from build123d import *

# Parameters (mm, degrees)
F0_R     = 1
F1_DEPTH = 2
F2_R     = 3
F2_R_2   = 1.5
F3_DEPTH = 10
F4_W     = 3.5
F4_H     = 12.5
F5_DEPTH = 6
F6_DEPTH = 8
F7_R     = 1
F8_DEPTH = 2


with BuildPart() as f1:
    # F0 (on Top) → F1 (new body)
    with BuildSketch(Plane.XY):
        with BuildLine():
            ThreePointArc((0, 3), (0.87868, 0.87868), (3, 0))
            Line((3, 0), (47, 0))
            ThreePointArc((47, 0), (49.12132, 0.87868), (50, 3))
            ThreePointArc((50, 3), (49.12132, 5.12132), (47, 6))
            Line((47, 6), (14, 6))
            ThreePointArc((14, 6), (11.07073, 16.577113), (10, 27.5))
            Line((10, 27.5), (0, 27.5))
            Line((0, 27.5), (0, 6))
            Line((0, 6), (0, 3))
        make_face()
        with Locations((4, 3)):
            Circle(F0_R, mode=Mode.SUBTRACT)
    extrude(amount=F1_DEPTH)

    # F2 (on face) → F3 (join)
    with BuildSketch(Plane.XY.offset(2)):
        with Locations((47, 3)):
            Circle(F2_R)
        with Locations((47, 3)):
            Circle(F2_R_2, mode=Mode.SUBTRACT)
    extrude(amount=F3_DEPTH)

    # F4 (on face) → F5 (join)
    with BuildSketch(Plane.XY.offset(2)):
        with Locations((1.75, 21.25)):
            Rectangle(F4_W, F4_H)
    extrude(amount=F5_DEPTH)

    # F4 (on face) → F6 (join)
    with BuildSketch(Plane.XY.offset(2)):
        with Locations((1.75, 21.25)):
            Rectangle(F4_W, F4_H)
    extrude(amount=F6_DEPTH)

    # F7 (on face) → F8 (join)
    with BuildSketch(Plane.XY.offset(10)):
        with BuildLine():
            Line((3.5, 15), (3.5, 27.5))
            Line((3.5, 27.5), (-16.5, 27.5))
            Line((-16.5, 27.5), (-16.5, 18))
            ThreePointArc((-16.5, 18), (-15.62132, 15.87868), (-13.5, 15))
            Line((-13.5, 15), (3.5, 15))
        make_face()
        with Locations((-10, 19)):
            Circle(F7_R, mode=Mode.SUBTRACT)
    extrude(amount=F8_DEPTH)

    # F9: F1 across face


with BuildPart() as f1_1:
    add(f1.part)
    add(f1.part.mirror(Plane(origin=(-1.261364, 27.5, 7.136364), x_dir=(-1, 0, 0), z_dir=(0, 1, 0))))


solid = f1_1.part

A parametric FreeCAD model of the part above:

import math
import FreeCAD as App
import Part
import Sketcher

V = App.Vector
Q = App.Units.Quantity

doc = App.newDocument("Part")
body = doc.addObject("PartDesign::Body", "Body")

sketch1 = body.newObject("Sketcher::SketchObject", "Sketch")
sketch1.AttachmentSupport = (doc.getObject("XY_Plane"), [""])
sketch1.MapMode = "FlatFace"
sketch1.addGeometry([
    Part.ArcOfCircle(Part.Circle(V(3, 3, 0), V(0, 0, 1), 3), math.radians(-180), math.radians(-90)),
    Part.LineSegment(V(3, 0, 0), V(47, 0, 0)),
    Part.ArcOfCircle(Part.Circle(V(47, 3, 0), V(0, 0, 1), 3), math.radians(-90), math.radians(0)),
    Part.ArcOfCircle(Part.Circle(V(47, 3, 0), V(0, 0, 1), 3), math.radians(0), math.radians(90)),
    Part.LineSegment(V(47, 6, 0), V(14, 6, 0)),
    Part.ArcOfCircle(Part.Circle(V(73.7, 28.2, 0), V(0, 0, 1), 63.7), math.radians(-179.34), math.radians(-159.58)),
    Part.LineSegment(V(10, 27.5, 0), V(0, 27.5, 0)),
    Part.LineSegment(V(0, 27.5, 0), V(0, 3, 0)),
    Part.Circle(V(4, 3, 0), V(0, 0, 1), 1),
], False)
sketch1.addConstraint([
    Sketcher.Constraint("Tangent", 0, 2, 1, 1),
    Sketcher.Constraint("Tangent", 1, 2, 2, 1),
    Sketcher.Constraint("Tangent", 2, 2, 3, 1),
    Sketcher.Constraint("Tangent", 3, 2, 4, 1),
    Sketcher.Constraint("Coincident", 4, 2, 5, 2),
    Sketcher.Constraint("Coincident", 5, 1, 6, 1),
    Sketcher.Constraint("Coincident", 6, 2, 7, 1),
    Sketcher.Constraint("Tangent", 7, 2, 0, 1),
    Sketcher.Constraint("Horizontal", 1),
    Sketcher.Constraint("Horizontal", 4),
    Sketcher.Constraint("Horizontal", 6),
    Sketcher.Constraint("Vertical", 7),
    Sketcher.Constraint("Equal", 0, 2),
    Sketcher.Constraint("Equal", 2, 3),
    Sketcher.Constraint("PointOnObject", 0, 2, -1),
    Sketcher.Constraint("PointOnObject", 6, 2, -2),
    Sketcher.Constraint("Horizontal", 3, 3, 8, 3),
    Sketcher.Constraint("Horizontal", 8, 3, 2, 2),
    Sketcher.Constraint("Diameter", 8, Q("2 mm")),
    Sketcher.Constraint("Radius", 0, Q("3.000001 mm")),
    Sketcher.Constraint("DistanceX", 1, 1, 1, 2, Q("44 mm")),
    Sketcher.Constraint("DistanceX", 4, 2, 4, 1, Q("33 mm")),
    Sketcher.Constraint("DistanceX", 6, 2, 6, 1, Q("10 mm")),
    Sketcher.Constraint("DistanceY", 7, 2, 7, 1, Q("24.5 mm")),
    Sketcher.Constraint("DistanceX", -1, 1, 8, 3, Q("4 mm")),
    Sketcher.Constraint("Radius", 5, Q("63.718756 mm")),
])
pad1 = body.newObject("PartDesign::Pad", "Pad")
pad1.Profile = sketch1
pad1.Length = 2

sketch2 = body.newObject("Sketcher::SketchObject", "Sketch001")
sketch2.AttachmentSupport = (doc.getObject("XY_Plane"), [""])
sketch2.MapMode = "FlatFace"
sketch2.AttachmentOffset = App.Placement(V(0, 0, 2), App.Rotation())
sketch2.addGeometry([
    Part.Circle(V(47, 3, 0), V(0, 0, 1), 3),
    Part.Circle(V(47, 3, 0), V(0, 0, 1), 1.5),
], False)
sketch2.addConstraint([
    Sketcher.Constraint("Coincident", 1, 3, 0, 3),
    Sketcher.Constraint("Diameter", 0, Q("6 mm")),
    Sketcher.Constraint("Diameter", 1, Q("3 mm")),
    Sketcher.Constraint("DistanceX", -1, 1, 0, 3, Q("47 mm")),
    Sketcher.Constraint("DistanceY", -1, 1, 0, 3, Q("3 mm")),
])
pad2 = body.newObject("PartDesign::Pad", "Pad001")
pad2.Profile = sketch2
pad2.Length = 10

sketch3 = body.newObject("Sketcher::SketchObject", "Sketch002")
sketch3.AttachmentSupport = (doc.getObject("XY_Plane"), [""])
sketch3.MapMode = "FlatFace"
sketch3.AttachmentOffset = App.Placement(V(0, 0, 2), App.Rotation())
sketch3.addGeometry([
    Part.LineSegment(V(0, 27.5, 0), V(0, 15, 0)),
    Part.LineSegment(V(0, 15, 0), V(3.5, 15, 0)),
    Part.LineSegment(V(3.5, 15, 0), V(3.5, 27.5, 0)),
    Part.LineSegment(V(3.5, 27.5, 0), V(0, 27.5, 0)),
], False)
sketch3.addConstraint([
    Sketcher.Constraint("Coincident", 0, 2, 1, 1),
    Sketcher.Constraint("Coincident", 1, 2, 2, 1),
    Sketcher.Constraint("Coincident", 2, 2, 3, 1),
    Sketcher.Constraint("Coincident", 3, 2, 0, 1),
    Sketcher.Constraint("Vertical", 0),
    Sketcher.Constraint("Horizontal", 1),
    Sketcher.Constraint("Vertical", 2),
    Sketcher.Constraint("Horizontal", 3),
    Sketcher.Constraint("PointOnObject", 0, 2, -2),
    Sketcher.Constraint("DistanceX", 1, 1, 1, 2, Q("3.5 mm")),
    Sketcher.Constraint("DistanceY", 0, 2, 0, 1, Q("12.5 mm")),
    Sketcher.Constraint("DistanceY", -1, 1, 0, 2, Q("15 mm")),
])
pad3 = body.newObject("PartDesign::Pad", "Pad002")
pad3.Profile = sketch3
pad3.Length = 6

sketch4 = body.newObject("Sketcher::SketchObject", "Sketch003")
sketch4.AttachmentSupport = (doc.getObject("XY_Plane"), [""])
sketch4.MapMode = "FlatFace"
sketch4.AttachmentOffset = App.Placement(V(0, 0, 2), App.Rotation())
sketch4.addGeometry([
    Part.LineSegment(V(0, 27.5, 0), V(0, 15, 0)),
    Part.LineSegment(V(0, 15, 0), V(3.5, 15, 0)),
    Part.LineSegment(V(3.5, 15, 0), V(3.5, 27.5, 0)),
    Part.LineSegment(V(3.5, 27.5, 0), V(0, 27.5, 0)),
], False)
sketch4.addConstraint([
    Sketcher.Constraint("Coincident", 0, 2, 1, 1),
    Sketcher.Constraint("Coincident", 1, 2, 2, 1),
    Sketcher.Constraint("Coincident", 2, 2, 3, 1),
    Sketcher.Constraint("Coincident", 3, 2, 0, 1),
    Sketcher.Constraint("Vertical", 0),
    Sketcher.Constraint("Horizontal", 1),
    Sketcher.Constraint("Vertical", 2),
    Sketcher.Constraint("Horizontal", 3),
    Sketcher.Constraint("PointOnObject", 0, 2, -2),
    Sketcher.Constraint("DistanceX", 1, 1, 1, 2, Q("3.5 mm")),
    Sketcher.Constraint("DistanceY", 0, 2, 0, 1, Q("12.5 mm")),
    Sketcher.Constraint("DistanceY", -1, 1, 0, 2, Q("15 mm")),
])
pad4 = body.newObject("PartDesign::Pad", "Pad003")
pad4.Profile = sketch4
pad4.Length = 8

sketch5 = body.newObject("Sketcher::SketchObject", "Sketch004")
sketch5.AttachmentSupport = (doc.getObject("XY_Plane"), [""])
sketch5.MapMode = "FlatFace"
sketch5.AttachmentOffset = App.Placement(V(0, 0, 10), App.Rotation())
sketch5.addGeometry([
    Part.LineSegment(V(3.5, 15, 0), V(3.5, 27.5, 0)),
    Part.LineSegment(V(3.5, 27.5, 0), V(-16.5, 27.5, 0)),
    Part.LineSegment(V(-16.5, 27.5, 0), V(-16.5, 18, 0)),
    Part.ArcOfCircle(Part.Circle(V(-13.5, 18, 0), V(0, 0, 1), 3), math.radians(-180), math.radians(-90)),
    Part.LineSegment(V(-13.5, 15, 0), V(3.5, 15, 0)),
    Part.Circle(V(-10, 19, 0), V(0, 0, 1), 1),
], False)
sketch5.addConstraint([
    Sketcher.Constraint("Coincident", 0, 2, 1, 1),
    Sketcher.Constraint("Coincident", 1, 2, 2, 1),
    Sketcher.Constraint("Tangent", 2, 2, 3, 1),
    Sketcher.Constraint("Tangent", 3, 2, 4, 1),
    Sketcher.Constraint("Coincident", 4, 2, 0, 1),
    Sketcher.Constraint("Vertical", 0),
    Sketcher.Constraint("Horizontal", 1),
    Sketcher.Constraint("Vertical", 2),
    Sketcher.Constraint("Horizontal", 4),
    Sketcher.Constraint("Diameter", 5, Q("2 mm")),
    Sketcher.Constraint("Radius", 3, Q("3.000001 mm")),
    Sketcher.Constraint("DistanceX", 1, 2, 1, 1, Q("20 mm")),
    Sketcher.Constraint("DistanceY", 0, 1, 0, 2, Q("12.5 mm")),
    Sketcher.Constraint("DistanceY", -1, 1, 3, 3, Q("18.000001 mm")),
    Sketcher.Constraint("DistanceX", 5, 3, -1, 1, Q("10 mm")),
    Sketcher.Constraint("DistanceY", -1, 1, 5, 3, Q("19 mm")),
    Sketcher.Constraint("DistanceX", 3, 3, -1, 1, Q("13.499999 mm")),
])
pad5 = body.newObject("PartDesign::Pad", "Pad004")
pad5.Profile = sketch5
pad5.Length = 2
body2 = doc.addObject("PartDesign::Body", "Body001")
doc.recompute()

body2.BaseFeature = body
doc.recompute()

mirroring = doc.addObject("Part::Mirroring", "Mirroring")
mirroring.Source = body
mirroring.Base = V(-1.261364, 27.5, 7.136364)
mirroring.Normal = V(0, 1, 0)
body3 = doc.addObject("PartDesign::Body", "Body002")
body3.BaseFeature = mirroring
boolean = body2.newObject("PartDesign::Boolean", "Boolean")
boolean.Type = "Fuse"
boolean.addObjects([body3])
doc.recompute()
mirroring.Visibility = False

doc.recompute()
